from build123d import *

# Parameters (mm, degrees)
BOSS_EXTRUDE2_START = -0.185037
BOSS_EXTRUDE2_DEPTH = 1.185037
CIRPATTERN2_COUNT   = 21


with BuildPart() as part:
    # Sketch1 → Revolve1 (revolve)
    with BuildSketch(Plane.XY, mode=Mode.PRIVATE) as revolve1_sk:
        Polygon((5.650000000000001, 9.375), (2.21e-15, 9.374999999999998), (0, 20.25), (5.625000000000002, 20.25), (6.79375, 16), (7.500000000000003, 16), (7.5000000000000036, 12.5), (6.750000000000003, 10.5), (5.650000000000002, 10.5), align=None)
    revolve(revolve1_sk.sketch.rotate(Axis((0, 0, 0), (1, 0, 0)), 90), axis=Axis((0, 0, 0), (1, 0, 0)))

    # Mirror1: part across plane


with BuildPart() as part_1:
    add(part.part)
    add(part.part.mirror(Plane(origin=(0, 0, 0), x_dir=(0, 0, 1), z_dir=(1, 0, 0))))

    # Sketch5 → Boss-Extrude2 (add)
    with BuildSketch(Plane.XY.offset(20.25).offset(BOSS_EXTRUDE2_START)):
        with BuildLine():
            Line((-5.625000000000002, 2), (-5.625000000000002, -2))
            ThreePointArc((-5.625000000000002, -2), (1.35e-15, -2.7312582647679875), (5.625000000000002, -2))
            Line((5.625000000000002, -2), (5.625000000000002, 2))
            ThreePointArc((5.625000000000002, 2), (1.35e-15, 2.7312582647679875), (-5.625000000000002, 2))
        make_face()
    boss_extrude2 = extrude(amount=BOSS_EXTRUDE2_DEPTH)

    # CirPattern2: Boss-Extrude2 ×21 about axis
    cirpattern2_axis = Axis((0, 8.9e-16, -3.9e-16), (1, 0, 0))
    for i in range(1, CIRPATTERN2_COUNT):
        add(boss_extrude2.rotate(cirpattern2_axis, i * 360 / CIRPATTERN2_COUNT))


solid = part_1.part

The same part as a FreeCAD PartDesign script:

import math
import FreeCAD as App
import Part
import Sketcher

V = App.Vector

doc = App.newDocument("Part")
params = doc.addObject("Spreadsheet::Sheet", "Params")
for row, (alias, value) in enumerate([
    ("sketch1_width", "1.1 mm"),
    ("sketch1_height", "3.5 mm"),
    ("sketch1_width2", "5.65 mm"),
    ("revolution_angle", "360 deg"),
    ("sketch2_radius", "22 mm"),
    ("sketch2_height", "4 mm"),
    ("pad1_length", "1.185037 mm"),
], start=1):
    params.set(f"A{row}", alias)
    params.set(f"B{row}", "=" + value)
    params.setAlias(f"B{row}", alias)

body = doc.addObject("PartDesign::Body", "Body")

sketch1 = doc.addObject("Sketcher::SketchObject", "Sketch")
body.addObject(sketch1)
sketch1.AttachmentSupport = (doc.XY_Plane, [""])
sketch1.MapMode = "FlatFace"
sketch1.addGeometry([
    Part.LineSegment(V(0, 9.4, 0), V(5.7, 9.4, 0)),
    Part.LineSegment(V(5.7, 9.4, 0), V(5.7, 10.5, 0)),
    Part.LineSegment(V(5.7, 10.5, 0), V(6.8, 10.5, 0)),
    Part.LineSegment(V(6.8, 10.5, 0), V(7.5, 12.5, 0)),
    Part.LineSegment(V(7.5, 12.5, 0), V(7.5, 16, 0)),
    Part.LineSegment(V(7.5, 16, 0), V(6.8, 16, 0)),
    Part.LineSegment(V(6.8, 16, 0), V(5.6, 20.2, 0)),
    Part.LineSegment(V(5.6, 20.2, 0), V(0, 20.2, 0)),
    Part.LineSegment(V(0, 20.2, 0), V(0, 9.4, 0)),
], False)
sketch1.addConstraint([
    Sketcher.Constraint("Coincident", 0, 2, 1, 1),
    Sketcher.Constraint("Coincident", 1, 2, 2, 1),
    Sketcher.Constraint("Coincident", 2, 2, 3, 1),
    Sketcher.Constraint("Coincident", 3, 2, 4, 1),
    Sketcher.Constraint("Coincident", 4, 2, 5, 1),
    Sketcher.Constraint("Coincident", 5, 2, 6, 1),
    Sketcher.Constraint("Coincident", 6, 2, 7, 1),
    Sketcher.Constraint("Coincident", 7, 2, 8, 1),
    Sketcher.Constraint("Coincident", 8, 2, 0, 1),
    Sketcher.Constraint("Horizontal", 0),
    Sketcher.Constraint("Vertical", 1),
    Sketcher.Constraint("Horizontal", 2),
    Sketcher.Constraint("Vertical", 4),
    Sketcher.Constraint("Horizontal", 5),
    Sketcher.Constraint("Horizontal", 7),
    Sketcher.Constraint("Vertical", 8),
    Sketcher.Constraint("PointOnObject", 7, 2, -2),
    Sketcher.Constraint("DistanceX", 2, 1, 2, 2, 1.1),
    Sketcher.Constraint("DistanceY", 4, 1, 4, 2, 3.5),
    Sketcher.Constraint("DistanceY", -1, 1, 4, 2, 16.0),
    Sketcher.Constraint("DistanceY", 2, 2, 3, 2, 2.0),
    Sketcher.Constraint("DistanceX", 0, 1, 0, 2, 5.65),
    Sketcher.Constraint("DistanceX", -1, 1, 3, 2, 7.5),
    Sketcher.Constraint("DistanceX", 7, 2, 7, 1, 5.625),
    Sketcher.Constraint("DistanceY", 1, 1, 1, 2, 1.125),
    Sketcher.Constraint("DistanceY", 8, 2, 8, 1, 10.875),
    Sketcher.Constraint("DistanceX", 5, 2, 5, 1, 0.70625),
])
sketch1.setExpression("Constraints[17]", "Params.sketch1_width")
sketch1.setExpression("Constraints[18]", "Params.sketch1_height")
sketch1.setExpression("Constraints[21]", "Params.sketch1_width2")
revolution = doc.addObject("PartDesign::Revolution", "Revolution")
body.addObject(revolution)
revolution.Profile = sketch1
revolution.ReferenceAxis = (sketch1, ["H_Axis"])
revolution.setExpression("Angle", "Params.revolution_angle")
body2 = doc.addObject("PartDesign::Body", "Body001")
doc.recompute()

body2.BaseFeature = body
doc.recompute()

mirroring = doc.addObject("Part::Mirroring", "Mirroring")
mirroring.Source = body
mirroring.Base = V(0, 0, 0)
mirroring.Normal = V(1, 0, 0)
body3 = doc.addObject("PartDesign::Body", "Body002")
body3.BaseFeature = mirroring
boolean = doc.addObject("PartDesign::Boolean", "Boolean")
body2.addObject(boolean)
boolean.Type = "Fuse"
boolean.addObjects([body3])
doc.recompute()

sketch2 = doc.addObject("Sketcher::SketchObject", "Sketch001")
body2.addObject(sketch2)
sketch2.AttachmentSupport = (doc.getObject("XY_Plane001"), [""])
sketch2.MapMode = "FlatFace"
sketch2.AttachmentOffset = App.Placement(V(0, 0, 20.064963), App.Rotation())
sketch2.addGeometry([
    Part.LineSegment(V(-5.6, 2, 0), V(-5.6, -2, 0)),
    Part.ArcOfCircle(Part.Circle(V(0, 19.3, 0), V(0, 0, 1), 22), math.radians(-105), math.radians(-75)),
    Part.LineSegment(V(5.6, -2, 0), V(5.6, 2, 0)),
    Part.ArcOfCircle(Part.Circle(V(0, -19.3, 0), V(0, 0, 1), 22), math.radians(75), math.radians(105)),
], False)
sketch2.addConstraint([
    Sketcher.Constraint("Coincident", 0, 2, 1, 1),
    Sketcher.Constraint("Coincident", 1, 2, 2, 1),
    Sketcher.Constraint("Coincident", 2, 2, 3, 1),
    Sketcher.Constraint("Coincident", 3, 2, 0, 1),
    Sketcher.Constraint("Vertical", 0),
    Sketcher.Constraint("Vertical", 2),
    Sketcher.Constraint("Equal", 1, 3),
    Sketcher.Constraint("Symmetric", 1, 3, 3, 3, -1, 1),
    Sketcher.Constraint("Symmetric", 0, 2, 1, 2, -2),
    Sketcher.Constraint("Radius", 1, 22.0),
    Sketcher.Constraint("DistanceY", 0, 2, 0, 1, 4.0),
    Sketcher.Constraint("DistanceX", 0, 2, 1, 2, 11.25),
])
sketch2.setExpression("Constraints[9]", "Params.sketch2_radius")
sketch2.setExpression("Constraints[10]", "Params.sketch2_height")
pad1 = doc.addObject("PartDesign::Pad", "Pad")
body2.addObject(pad1)
pad1.Profile = sketch2
pad1.setExpression("Length", "Params.pad1_length")
doc.recompute()

polarpattern = doc.addObject("PartDesign::PolarPattern", "PolarPattern")
body2.addObject(polarpattern)
polarpattern.Originals = [pad1]
polarpattern.Axis = (doc.getObject("X_Axis001"), [""])
polarpattern.Angle = 360
polarpattern.Occurrences = 21
body2.Tip = polarpattern
mirroring.Visibility = False

doc.recompute()
